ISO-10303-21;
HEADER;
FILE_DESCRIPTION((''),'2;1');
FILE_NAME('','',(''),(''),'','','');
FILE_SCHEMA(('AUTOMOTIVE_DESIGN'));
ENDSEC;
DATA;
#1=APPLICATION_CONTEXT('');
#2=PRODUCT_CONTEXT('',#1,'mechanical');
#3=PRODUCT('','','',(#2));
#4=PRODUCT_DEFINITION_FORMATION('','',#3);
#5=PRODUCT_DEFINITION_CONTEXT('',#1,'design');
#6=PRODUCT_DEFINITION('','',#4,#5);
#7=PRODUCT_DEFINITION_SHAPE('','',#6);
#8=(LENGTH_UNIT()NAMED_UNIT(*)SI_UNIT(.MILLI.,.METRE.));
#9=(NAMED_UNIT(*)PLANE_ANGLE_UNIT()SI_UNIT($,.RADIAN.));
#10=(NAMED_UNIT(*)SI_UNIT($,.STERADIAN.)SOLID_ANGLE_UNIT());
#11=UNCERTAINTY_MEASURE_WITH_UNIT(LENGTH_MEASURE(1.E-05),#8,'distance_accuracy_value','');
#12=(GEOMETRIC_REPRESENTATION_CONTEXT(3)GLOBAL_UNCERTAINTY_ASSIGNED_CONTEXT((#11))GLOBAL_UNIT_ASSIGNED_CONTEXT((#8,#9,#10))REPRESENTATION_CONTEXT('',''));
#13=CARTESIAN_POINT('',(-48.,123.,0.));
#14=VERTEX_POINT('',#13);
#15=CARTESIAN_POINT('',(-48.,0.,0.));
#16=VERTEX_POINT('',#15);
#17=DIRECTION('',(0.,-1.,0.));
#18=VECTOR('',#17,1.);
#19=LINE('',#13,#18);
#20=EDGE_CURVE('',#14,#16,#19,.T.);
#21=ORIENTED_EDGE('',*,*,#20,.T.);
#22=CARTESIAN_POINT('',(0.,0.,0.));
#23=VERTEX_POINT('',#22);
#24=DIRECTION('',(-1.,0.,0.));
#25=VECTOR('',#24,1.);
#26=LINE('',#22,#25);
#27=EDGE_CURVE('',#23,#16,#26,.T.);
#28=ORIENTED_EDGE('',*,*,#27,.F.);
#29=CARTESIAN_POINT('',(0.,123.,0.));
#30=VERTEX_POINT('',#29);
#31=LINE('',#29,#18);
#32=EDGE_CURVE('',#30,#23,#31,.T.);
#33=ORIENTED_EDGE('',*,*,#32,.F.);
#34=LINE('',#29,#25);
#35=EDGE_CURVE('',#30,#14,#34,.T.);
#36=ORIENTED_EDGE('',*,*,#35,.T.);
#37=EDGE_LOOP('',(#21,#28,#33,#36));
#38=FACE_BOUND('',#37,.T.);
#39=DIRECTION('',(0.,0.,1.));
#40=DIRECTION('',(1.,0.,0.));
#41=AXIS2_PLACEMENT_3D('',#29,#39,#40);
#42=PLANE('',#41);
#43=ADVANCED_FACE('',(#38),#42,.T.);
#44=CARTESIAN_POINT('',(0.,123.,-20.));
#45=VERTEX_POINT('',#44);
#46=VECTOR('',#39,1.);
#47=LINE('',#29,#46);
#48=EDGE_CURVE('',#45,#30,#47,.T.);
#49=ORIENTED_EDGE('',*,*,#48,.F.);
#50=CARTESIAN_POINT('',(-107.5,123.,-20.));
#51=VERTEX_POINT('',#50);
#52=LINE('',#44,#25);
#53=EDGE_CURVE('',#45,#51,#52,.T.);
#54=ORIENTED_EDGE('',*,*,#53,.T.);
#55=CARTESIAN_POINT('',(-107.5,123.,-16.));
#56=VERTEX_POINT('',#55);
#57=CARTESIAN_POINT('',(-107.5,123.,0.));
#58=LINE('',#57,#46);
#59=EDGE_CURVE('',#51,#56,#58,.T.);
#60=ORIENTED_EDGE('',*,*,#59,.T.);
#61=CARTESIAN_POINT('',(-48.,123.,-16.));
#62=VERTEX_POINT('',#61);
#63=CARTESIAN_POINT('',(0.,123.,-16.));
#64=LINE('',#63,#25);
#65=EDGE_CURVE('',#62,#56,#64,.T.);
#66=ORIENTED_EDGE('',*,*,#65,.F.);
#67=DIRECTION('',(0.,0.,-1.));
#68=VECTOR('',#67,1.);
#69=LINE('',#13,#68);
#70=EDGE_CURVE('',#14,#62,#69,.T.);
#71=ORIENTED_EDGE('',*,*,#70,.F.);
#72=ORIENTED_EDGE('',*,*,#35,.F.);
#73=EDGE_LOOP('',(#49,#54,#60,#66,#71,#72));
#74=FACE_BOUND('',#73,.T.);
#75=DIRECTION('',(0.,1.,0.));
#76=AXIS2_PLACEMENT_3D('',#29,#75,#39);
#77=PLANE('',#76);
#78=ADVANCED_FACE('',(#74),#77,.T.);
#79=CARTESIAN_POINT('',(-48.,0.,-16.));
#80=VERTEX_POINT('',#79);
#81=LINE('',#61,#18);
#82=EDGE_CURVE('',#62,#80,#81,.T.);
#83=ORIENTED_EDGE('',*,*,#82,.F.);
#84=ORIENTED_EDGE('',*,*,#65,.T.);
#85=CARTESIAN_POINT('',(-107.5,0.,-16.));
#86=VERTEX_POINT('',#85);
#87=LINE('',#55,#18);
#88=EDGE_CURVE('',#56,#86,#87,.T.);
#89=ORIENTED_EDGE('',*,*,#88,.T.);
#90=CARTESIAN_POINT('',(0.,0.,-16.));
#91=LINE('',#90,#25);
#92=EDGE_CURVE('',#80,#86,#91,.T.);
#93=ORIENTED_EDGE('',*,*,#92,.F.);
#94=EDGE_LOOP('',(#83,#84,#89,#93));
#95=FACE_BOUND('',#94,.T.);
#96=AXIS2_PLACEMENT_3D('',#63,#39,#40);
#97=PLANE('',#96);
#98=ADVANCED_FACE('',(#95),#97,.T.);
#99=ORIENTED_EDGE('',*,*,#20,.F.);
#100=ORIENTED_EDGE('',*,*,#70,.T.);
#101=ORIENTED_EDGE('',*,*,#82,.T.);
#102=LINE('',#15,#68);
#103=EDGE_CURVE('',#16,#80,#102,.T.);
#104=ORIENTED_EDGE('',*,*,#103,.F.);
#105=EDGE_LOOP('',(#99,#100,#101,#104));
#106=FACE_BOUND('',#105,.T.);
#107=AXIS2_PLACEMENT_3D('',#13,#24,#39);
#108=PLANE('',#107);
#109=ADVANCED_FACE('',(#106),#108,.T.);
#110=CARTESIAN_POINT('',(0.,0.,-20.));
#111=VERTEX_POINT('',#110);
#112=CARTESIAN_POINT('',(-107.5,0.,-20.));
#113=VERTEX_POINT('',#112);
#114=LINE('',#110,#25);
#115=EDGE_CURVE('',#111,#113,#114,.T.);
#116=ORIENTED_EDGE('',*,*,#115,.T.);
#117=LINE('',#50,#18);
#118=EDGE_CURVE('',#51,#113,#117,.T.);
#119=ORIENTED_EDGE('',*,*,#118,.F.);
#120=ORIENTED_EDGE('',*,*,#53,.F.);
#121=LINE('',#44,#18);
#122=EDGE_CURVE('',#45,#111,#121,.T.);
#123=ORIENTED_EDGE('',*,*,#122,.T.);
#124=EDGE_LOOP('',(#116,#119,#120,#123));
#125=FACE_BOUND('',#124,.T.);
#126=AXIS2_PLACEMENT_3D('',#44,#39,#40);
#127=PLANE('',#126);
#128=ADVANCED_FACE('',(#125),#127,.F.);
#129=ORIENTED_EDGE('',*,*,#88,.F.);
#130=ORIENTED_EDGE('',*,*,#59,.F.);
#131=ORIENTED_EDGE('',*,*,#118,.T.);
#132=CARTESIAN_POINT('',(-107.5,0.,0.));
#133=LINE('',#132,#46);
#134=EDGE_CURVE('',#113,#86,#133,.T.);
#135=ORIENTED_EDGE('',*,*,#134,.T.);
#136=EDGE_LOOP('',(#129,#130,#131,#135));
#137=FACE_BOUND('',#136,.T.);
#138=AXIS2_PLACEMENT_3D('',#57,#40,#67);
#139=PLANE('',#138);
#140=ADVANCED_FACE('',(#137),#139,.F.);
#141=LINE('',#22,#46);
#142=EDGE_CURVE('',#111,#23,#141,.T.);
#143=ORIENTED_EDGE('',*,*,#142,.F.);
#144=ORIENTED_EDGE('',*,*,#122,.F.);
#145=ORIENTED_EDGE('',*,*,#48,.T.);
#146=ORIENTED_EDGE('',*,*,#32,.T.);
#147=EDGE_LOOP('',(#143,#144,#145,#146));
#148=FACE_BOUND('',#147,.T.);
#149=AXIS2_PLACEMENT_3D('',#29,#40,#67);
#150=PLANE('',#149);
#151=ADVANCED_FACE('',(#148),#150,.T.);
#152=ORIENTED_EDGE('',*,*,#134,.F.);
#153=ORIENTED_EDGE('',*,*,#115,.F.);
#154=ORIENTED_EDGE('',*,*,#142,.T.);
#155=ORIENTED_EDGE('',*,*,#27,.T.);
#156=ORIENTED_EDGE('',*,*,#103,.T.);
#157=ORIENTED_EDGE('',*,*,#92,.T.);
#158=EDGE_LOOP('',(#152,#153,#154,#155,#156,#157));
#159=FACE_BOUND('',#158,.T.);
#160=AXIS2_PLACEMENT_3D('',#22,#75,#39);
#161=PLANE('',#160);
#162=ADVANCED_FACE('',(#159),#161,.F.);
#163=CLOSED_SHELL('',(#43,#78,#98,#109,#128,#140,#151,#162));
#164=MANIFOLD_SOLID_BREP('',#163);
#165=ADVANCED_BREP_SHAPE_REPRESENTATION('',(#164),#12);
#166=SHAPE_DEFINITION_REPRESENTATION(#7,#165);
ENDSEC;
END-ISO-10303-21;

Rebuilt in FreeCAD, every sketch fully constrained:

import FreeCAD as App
import Part
import Sketcher
from FreeCAD import Vector
Q = App.Units.Quantity


def add_polygon(sketch, points):
    """Adds a closed chain of lines whose ends are joined by coincident constraints."""
    first, n = sketch.GeometryCount, len(points)
    for a, b in zip(points, points[1:] + points[:1]):
        sketch.addGeometry(Part.LineSegment(App.Vector(*a, 0), App.Vector(*b, 0)), False)
    for i in range(n):
        sketch.addConstraint(Sketcher.Constraint("Coincident", first + i, 2, first + (i + 1) % n, 1))

doc = App.newDocument("Part")
body = doc.addObject("PartDesign::Body", "Body")

# Sketch on XZ plane
sketch1 = doc.addObject("Sketcher::SketchObject", "Sketch")
body.addObject(sketch1)
sketch1.AttachmentSupport = (doc.XZ_Plane, [""])
sketch1.MapMode = "FlatFace"
add_polygon(sketch1, [(-107.5, -20), (-107.5, -16), (-48, -16), (-48, 0), (0, 0), (0, -20)])  # lines 0-5
sketch1.addConstraint(Sketcher.Constraint("Vertical", 0))
sketch1.addConstraint(Sketcher.Constraint("Horizontal", 1))
sketch1.addConstraint(Sketcher.Constraint("Vertical", 2))
sketch1.addConstraint(Sketcher.Constraint("Horizontal", 3))
sketch1.addConstraint(Sketcher.Constraint("Vertical", 4))
sketch1.addConstraint(Sketcher.Constraint("Horizontal", 5))
sketch1.addConstraint(Sketcher.Constraint("Coincident", 3, 2, -1, 1))
sketch1.addConstraint(Sketcher.Constraint("DistanceX", 3, 1, 3, 2, Q("48 mm")))
sketch1.addConstraint(Sketcher.Constraint("DistanceY", 0, 1, 0, 2, Q("4 mm")))
sketch1.addConstraint(Sketcher.Constraint("DistanceY", 2, 1, 2, 2, Q("16 mm")))
sketch1.addConstraint(Sketcher.Constraint("DistanceX", 1, 1, 1, 2, Q("59.5 mm")))
pad1 = doc.addObject("PartDesign::Pad", "Pad")
body.addObject(pad1)
pad1.Profile = sketch1
pad1.Length = 123
pad1.Reversed = True

doc.recompute()
